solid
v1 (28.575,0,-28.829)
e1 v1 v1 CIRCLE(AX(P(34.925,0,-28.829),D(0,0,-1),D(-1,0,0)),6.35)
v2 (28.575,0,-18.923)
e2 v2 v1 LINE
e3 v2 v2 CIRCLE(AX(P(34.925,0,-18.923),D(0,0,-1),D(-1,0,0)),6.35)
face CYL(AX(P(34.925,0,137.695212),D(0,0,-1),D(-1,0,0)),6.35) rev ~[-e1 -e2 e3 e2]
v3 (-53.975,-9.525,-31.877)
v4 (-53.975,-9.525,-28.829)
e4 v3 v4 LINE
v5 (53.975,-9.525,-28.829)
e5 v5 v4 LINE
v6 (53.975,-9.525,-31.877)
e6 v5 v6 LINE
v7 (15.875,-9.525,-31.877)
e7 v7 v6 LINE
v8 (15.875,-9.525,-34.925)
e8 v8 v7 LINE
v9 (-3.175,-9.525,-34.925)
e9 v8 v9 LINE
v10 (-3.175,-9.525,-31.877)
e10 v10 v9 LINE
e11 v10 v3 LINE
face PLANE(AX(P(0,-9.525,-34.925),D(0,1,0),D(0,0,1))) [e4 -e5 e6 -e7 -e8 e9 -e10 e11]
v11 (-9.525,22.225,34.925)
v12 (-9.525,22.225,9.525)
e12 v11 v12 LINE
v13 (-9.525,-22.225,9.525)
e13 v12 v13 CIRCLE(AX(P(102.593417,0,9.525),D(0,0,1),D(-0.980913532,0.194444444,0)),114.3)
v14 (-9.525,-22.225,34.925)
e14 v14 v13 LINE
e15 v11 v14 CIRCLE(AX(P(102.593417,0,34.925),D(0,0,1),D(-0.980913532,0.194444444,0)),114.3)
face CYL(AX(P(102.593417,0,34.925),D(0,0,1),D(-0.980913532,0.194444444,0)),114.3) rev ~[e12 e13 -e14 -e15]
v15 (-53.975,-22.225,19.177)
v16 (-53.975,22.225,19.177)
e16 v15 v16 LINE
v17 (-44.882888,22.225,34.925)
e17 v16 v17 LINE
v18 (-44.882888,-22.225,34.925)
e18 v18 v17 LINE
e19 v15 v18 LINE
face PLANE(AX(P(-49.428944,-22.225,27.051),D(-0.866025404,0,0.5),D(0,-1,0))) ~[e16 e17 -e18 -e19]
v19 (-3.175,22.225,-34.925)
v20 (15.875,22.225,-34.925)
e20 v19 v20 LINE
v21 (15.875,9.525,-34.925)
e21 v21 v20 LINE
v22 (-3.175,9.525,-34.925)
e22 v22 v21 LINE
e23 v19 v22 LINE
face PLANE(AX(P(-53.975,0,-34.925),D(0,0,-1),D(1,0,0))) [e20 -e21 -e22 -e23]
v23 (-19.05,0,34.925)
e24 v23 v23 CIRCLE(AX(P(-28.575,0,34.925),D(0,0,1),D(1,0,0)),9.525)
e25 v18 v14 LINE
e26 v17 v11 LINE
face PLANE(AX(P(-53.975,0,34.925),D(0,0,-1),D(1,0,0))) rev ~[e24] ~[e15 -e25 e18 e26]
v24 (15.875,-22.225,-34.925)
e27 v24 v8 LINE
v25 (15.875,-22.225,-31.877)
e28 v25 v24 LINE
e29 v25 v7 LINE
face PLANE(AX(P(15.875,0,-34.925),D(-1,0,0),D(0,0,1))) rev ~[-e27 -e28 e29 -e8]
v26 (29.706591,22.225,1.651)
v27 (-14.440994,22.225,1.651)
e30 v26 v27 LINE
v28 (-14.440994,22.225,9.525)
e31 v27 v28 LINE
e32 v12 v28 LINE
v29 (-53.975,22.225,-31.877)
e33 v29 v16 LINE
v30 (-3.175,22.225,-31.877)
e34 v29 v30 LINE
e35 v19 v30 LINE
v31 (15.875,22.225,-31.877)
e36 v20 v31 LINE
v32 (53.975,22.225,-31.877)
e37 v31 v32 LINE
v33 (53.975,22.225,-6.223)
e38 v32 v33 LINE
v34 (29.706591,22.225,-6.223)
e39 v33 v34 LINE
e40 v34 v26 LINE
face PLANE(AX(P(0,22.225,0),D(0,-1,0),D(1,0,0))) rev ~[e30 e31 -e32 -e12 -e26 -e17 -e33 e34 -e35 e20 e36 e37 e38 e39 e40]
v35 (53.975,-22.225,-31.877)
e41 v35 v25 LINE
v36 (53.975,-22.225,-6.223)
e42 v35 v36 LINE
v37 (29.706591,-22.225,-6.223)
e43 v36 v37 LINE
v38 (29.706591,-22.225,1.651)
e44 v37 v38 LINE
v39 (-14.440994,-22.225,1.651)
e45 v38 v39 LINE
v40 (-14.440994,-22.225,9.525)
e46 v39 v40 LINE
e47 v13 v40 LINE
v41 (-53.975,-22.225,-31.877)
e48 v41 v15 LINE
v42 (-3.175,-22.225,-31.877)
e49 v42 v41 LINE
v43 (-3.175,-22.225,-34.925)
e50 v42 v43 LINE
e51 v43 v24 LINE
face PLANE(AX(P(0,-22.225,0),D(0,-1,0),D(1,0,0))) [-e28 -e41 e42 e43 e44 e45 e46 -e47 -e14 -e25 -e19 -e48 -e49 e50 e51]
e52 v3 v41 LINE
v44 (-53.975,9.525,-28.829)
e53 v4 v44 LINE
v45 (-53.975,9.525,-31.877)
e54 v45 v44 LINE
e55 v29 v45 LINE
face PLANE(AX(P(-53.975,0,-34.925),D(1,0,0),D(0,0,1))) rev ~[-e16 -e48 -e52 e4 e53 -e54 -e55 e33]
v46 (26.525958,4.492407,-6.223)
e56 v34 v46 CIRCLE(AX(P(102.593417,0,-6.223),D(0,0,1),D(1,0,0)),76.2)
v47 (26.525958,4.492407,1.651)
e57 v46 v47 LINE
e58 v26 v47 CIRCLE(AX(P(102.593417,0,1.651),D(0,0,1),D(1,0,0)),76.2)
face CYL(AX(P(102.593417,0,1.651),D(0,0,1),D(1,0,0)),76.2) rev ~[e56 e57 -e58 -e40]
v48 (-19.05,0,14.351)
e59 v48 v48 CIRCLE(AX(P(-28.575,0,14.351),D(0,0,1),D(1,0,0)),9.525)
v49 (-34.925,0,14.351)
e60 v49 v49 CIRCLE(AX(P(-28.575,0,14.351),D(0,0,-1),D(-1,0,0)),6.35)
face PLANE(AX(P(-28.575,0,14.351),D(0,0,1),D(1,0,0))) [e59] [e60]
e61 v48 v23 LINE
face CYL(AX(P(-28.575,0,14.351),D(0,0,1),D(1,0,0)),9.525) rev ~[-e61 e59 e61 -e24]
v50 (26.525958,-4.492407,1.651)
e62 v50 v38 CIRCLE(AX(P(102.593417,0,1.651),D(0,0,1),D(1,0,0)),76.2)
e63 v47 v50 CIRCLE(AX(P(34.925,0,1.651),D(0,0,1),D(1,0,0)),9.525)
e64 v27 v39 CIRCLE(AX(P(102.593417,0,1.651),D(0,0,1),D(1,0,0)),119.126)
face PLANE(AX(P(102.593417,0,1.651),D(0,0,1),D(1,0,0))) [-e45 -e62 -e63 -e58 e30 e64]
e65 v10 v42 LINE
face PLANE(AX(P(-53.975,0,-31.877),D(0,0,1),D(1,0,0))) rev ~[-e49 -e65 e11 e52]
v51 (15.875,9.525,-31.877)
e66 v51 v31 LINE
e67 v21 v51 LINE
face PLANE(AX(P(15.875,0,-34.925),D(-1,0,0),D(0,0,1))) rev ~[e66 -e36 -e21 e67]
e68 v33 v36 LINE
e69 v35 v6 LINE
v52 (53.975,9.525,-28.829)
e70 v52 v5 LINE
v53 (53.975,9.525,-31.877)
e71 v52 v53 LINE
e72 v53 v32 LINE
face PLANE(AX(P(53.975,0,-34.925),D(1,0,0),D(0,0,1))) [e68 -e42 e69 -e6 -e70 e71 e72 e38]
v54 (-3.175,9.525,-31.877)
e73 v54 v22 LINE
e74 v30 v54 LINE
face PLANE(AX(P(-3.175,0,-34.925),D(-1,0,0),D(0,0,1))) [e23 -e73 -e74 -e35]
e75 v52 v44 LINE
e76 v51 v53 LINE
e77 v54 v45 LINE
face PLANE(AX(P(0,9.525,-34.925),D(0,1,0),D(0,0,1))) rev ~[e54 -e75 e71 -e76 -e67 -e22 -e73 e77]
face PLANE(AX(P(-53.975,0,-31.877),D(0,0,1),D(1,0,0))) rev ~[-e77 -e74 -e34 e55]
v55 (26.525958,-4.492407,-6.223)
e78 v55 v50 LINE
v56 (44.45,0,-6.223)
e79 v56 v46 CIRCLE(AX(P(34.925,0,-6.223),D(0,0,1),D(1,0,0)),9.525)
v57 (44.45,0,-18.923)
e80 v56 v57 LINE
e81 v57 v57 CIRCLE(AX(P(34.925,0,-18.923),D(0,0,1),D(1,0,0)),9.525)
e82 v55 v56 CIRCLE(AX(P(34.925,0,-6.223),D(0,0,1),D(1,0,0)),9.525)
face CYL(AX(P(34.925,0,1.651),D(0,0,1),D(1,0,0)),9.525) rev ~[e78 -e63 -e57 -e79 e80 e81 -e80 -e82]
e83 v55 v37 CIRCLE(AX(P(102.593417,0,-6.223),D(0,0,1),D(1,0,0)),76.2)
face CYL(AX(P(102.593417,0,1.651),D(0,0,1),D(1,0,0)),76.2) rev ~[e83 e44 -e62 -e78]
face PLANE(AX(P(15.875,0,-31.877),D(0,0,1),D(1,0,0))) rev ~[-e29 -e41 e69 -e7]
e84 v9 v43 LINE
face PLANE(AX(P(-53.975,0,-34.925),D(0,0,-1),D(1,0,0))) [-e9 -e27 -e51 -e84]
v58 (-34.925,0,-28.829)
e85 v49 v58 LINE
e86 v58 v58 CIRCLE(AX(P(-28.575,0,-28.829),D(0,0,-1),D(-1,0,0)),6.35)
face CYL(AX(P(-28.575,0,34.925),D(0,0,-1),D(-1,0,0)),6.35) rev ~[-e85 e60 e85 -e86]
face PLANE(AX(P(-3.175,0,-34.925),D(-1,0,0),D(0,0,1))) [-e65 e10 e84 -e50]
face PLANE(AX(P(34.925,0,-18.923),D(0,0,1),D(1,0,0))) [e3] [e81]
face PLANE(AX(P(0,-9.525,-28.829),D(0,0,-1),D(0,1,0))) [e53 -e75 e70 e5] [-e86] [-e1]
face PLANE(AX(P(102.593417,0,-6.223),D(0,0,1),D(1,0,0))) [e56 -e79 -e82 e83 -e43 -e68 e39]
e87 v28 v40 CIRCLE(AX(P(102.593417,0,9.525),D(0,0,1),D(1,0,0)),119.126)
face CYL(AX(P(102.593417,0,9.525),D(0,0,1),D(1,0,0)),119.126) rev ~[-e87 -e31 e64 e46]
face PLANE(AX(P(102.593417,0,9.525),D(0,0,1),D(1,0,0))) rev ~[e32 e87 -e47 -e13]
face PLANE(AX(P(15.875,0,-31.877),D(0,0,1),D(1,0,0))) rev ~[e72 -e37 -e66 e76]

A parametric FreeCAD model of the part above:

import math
import FreeCAD as App
import Part
import Sketcher
from FreeCAD import Vector
Q = App.Units.Quantity


def edges_at(feature, points):
    """Names of the edges that pass closest to the given points."""
    edges = feature.Shape.Edges
    near = lambda p: min(range(len(edges)), key=lambda i: edges[i].distToShape(Part.Vertex(*p))[0])
    return sorted({f"Edge{near(p) + 1}" for p in points})


def add_polygon(sketch, points):
    """Adds a closed chain of lines whose ends are joined by coincident constraints."""
    first, n = sketch.GeometryCount, len(points)
    for a, b in zip(points, points[1:] + points[:1]):
        sketch.addGeometry(Part.LineSegment(App.Vector(*a, 0), App.Vector(*b, 0)), False)
    for i in range(n):
        sketch.addConstraint(Sketcher.Constraint("Coincident", first + i, 2, first + (i + 1) % n, 1))

doc = App.newDocument("Part")
body = doc.addObject("PartDesign::Body", "Body")

# Sketch on XZ plane
sketch1 = doc.addObject("Sketcher::SketchObject", "Sketch")
body.addObject(sketch1)
sketch1.AttachmentSupport = (doc.XZ_Plane, [""])
sketch1.MapMode = "FlatFace"
add_polygon(sketch1, [(-54, 35), (-54, -35), (54, -35), (54, 35)])  # lines 0-3
sketch1.addConstraint([
    Sketcher.Constraint("Vertical", 0),
    Sketcher.Constraint("Horizontal", 1),
    Sketcher.Constraint("Vertical", 2),
    Sketcher.Constraint("Horizontal", 3),
    Sketcher.Constraint("Symmetric", 0, 2, 2, 2, -1, 1),
    Sketcher.Constraint("DistanceX", 1, 1, 1, 2, Q("4.25 in")),
    Sketcher.Constraint("DistanceY", 0, 2, 0, 1, Q("2.75 in")),
])
pad1 = doc.addObject("PartDesign::Pad", "Pad")
body.addObject(pad1)
pad1.Profile = sketch1
pad1.Length = Q("1.75 in")
pad1.Midplane = True

# Sketch on XZ plane
sketch2 = doc.addObject("Sketcher::SketchObject", "Sketch001")
body.addObject(sketch2)
sketch2.AttachmentSupport = (doc.XZ_Plane, [""])
sketch2.MapMode = "FlatFace"
add_polygon(sketch2, [(-54, -31.9), (-54, -34.9), (-3.2, -34.9), (-3.2, -31.9)])  # lines 0-3
add_polygon(sketch2, [(15.9, -31.9), (15.9, -34.9), (54, -34.9), (54, -31.9)])  # lines 4-7
sketch2.addConstraint([
    Sketcher.Constraint("Vertical", 0),
    Sketcher.Constraint("Horizontal", 1),
    Sketcher.Constraint("Vertical", 2),
    Sketcher.Constraint("Horizontal", 3),
    Sketcher.Constraint("Vertical", 4),
    Sketcher.Constraint("Horizontal", 5),
    Sketcher.Constraint("Vertical", 6),
    Sketcher.Constraint("Horizontal", 7),
    Sketcher.Constraint("Symmetric", 0, 2, 5, 2, -2),
    Sketcher.Constraint("Horizontal", 3, 2, 6, 2),
    Sketcher.Constraint("DistanceX", 1, 1, 1, 2, Q("2 in")),
    Sketcher.Constraint("DistanceX", 5, 1, 5, 2, Q("1.5 in")),
    Sketcher.Constraint("DistanceY", 0, 2, 0, 1, Q("0.12 in")),
    Sketcher.Constraint("DistanceX", 1, 2, 4, 2, Q("0.75 in")),
    Sketcher.Constraint("DistanceY", 0, 2, -1, 1, Q("1.375 in")),
])
pocket1 = doc.addObject("PartDesign::Pocket", "Pocket")
body.addObject(pocket1)
pocket1.Profile = sketch2
pocket1.Type = "ThroughAll"
pocket1.Midplane = True

# Sketch on YZ plane
sketch3 = doc.addObject("Sketcher::SketchObject", "Sketch002")
body.addObject(sketch3)
sketch3.AttachmentSupport = (doc.YZ_Plane, [""])
sketch3.MapMode = "FlatFace"
add_polygon(sketch3, [(-10, -29), (-10, -35), (10, -35), (10, -29)])  # lines 0-3
sketch3.addConstraint([
    Sketcher.Constraint("Vertical", 0),
    Sketcher.Constraint("Horizontal", 1),
    Sketcher.Constraint("Vertical", 2),
    Sketcher.Constraint("Horizontal", 3),
    Sketcher.Constraint("DistanceX", 1, 1, 1, 2, Q("0.75 in")),
    Sketcher.Constraint("DistanceY", 0, 2, 0, 1, Q("0.24 in")),
    Sketcher.Constraint("DistanceX", 0, 2, -1, 1, Q("0.375 in")),
    Sketcher.Constraint("DistanceY", 0, 2, -1, 1, Q("1.375 in")),
])
pocket2 = doc.addObject("PartDesign::Pocket", "Pocket001")
body.addObject(pocket2)
pocket2.Profile = sketch3
pocket2.Type = "ThroughAll"
pocket2.Midplane = True

# Sketch on XY plane
sketch4 = doc.addObject("Sketcher::SketchObject", "Sketch003")
body.addObject(sketch4)
sketch4.AttachmentSupport = (doc.XY_Plane, [""])
sketch4.MapMode = "FlatFace"
sketch4.AttachmentOffset = App.Placement(Vector(0, 0, 1.375 * 25.4), App.Rotation())
sketch4.addGeometry([
    Part.LineSegment(Vector(54, 22, 0), Vector(-10, 22, 0)),
    Part.ArcOfCircle(Part.Circle(Vector(103, 0, 0), Vector(0, 0, 1), 114), math.radians(169), math.radians(191)),
    Part.LineSegment(Vector(-10, -22, 0), Vector(54, -22, 0)),
    Part.LineSegment(Vector(54, -22, 0), Vector(54, 22, 0)),
], False)
sketch4.addConstraint([
    Sketcher.Constraint("Coincident", 0, 2, 1, 1),
    Sketcher.Constraint("Coincident", 1, 2, 2, 1),
    Sketcher.Constraint("Coincident", 2, 2, 3, 1),
    Sketcher.Constraint("Coincident", 3, 2, 0, 1),
    Sketcher.Constraint("Horizontal", 0),
    Sketcher.Constraint("Horizontal", 2),
    Sketcher.Constraint("Vertical", 3),
    Sketcher.Constraint("Symmetric", 0, 2, 1, 2, -1),
    Sketcher.Constraint("Radius", 1, Q("4.5 in")),
    Sketcher.Constraint("DistanceX", 0, 2, 0, 1, Q("2.5 in")),
    Sketcher.Constraint("DistanceY", 3, 1, 3, 2, Q("1.75 in")),
    Sketcher.Constraint("DistanceX", 0, 2, -1, 1, Q("0.375 in")),
])
pocket3 = doc.addObject("PartDesign::Pocket", "Pocket002")
body.addObject(pocket3)
pocket3.Profile = sketch4
pocket3.Length = Q("1 in")

# Sketch on XY plane
sketch5 = doc.addObject("Sketcher::SketchObject", "Sketch004")
body.addObject(sketch5)
sketch5.AttachmentSupport = (doc.XY_Plane, [""])
sketch5.MapMode = "FlatFace"
sketch5.AttachmentOffset = App.Placement(Vector(0, 0, 0.375 * 25.4), App.Rotation())
sketch5.addGeometry(Part.Circle(Vector(103, 0, 0), Vector(0, 0, 1), 119), False)
sketch5.addConstraint([
    Sketcher.Constraint("PointOnObject", 0, 3, -1),
    Sketcher.Constraint("Diameter", 0, Q("9.38 in")),
    Sketcher.Constraint("DistanceX", -1, 1, 0, 3, Q("102.593417 mm")),
])
pocket4 = doc.addObject("PartDesign::Pocket", "Pocket003")
body.addObject(pocket4)
pocket4.Profile = sketch5
pocket4.Length = Q("0.31 in")

# Sketch on XY plane
sketch6 = doc.addObject("Sketcher::SketchObject", "Sketch005")
body.addObject(sketch6)
sketch6.AttachmentSupport = (doc.XY_Plane, [""])
sketch6.MapMode = "FlatFace"
sketch6.AttachmentOffset = App.Placement(Vector(0, 0, 0.065 * 25.4), App.Rotation())
sketch6.addGeometry(Part.Circle(Vector(103, 0, 0), Vector(0, 0, 1), 76), False)
sketch6.addConstraint([
    Sketcher.Constraint("PointOnObject", 0, 3, -1),
    Sketcher.Constraint("Diameter", 0, Q("6 in")),
    Sketcher.Constraint("DistanceX", -1, 1, 0, 3, Q("102.593417 mm")),
])
pocket5 = doc.addObject("PartDesign::Pocket", "Pocket004")
body.addObject(pocket5)
pocket5.Profile = sketch6
pocket5.Length = Q("0.31 in")

# Sketch on XY plane
sketch7 = doc.addObject("Sketcher::SketchObject", "Sketch006")
body.addObject(sketch7)
sketch7.AttachmentSupport = (doc.XY_Plane, [""])
sketch7.MapMode = "FlatFace"
sketch7.AttachmentOffset = App.Placement(Vector(0, 0, 1.375 * 25.4), App.Rotation())
sketch7.addGeometry(Part.Circle(Vector(-29, 0, 0), Vector(0, 0, 1), 6), False)
sketch7.addConstraint([
    Sketcher.Constraint("PointOnObject", 0, 3, -1),
    Sketcher.Constraint("Diameter", 0, Q("0.5 in")),
    Sketcher.Constraint("DistanceX", 0, 3, -1, 1, Q("1.125 in")),
])
doc.recompute()
hole = doc.addObject("PartDesign::Hole", "Hole")
body.addObject(hole)
hole.Profile = sketch7
hole.ThreadType = "None"
hole.Diameter = Q("0.5 in")
hole.DepthType = "ThroughAll"
hole.HoleCutType = "Counterbore"
hole.HoleCutDiameter = Q("0.75 in")
hole.HoleCutDepth = Q("0.81 in")

# Sketch on XY plane
sketch8 = doc.addObject("Sketcher::SketchObject", "Sketch007")
body.addObject(sketch8)
sketch8.AttachmentSupport = (doc.XY_Plane, [""])
sketch8.MapMode = "FlatFace"
sketch8.AttachmentOffset = App.Placement(Vector(0, 0, 0.065 * 25.4), App.Rotation())
sketch8.addGeometry(Part.Circle(Vector(35, 0, 0), Vector(0, 0, 1), 6), False)
sketch8.addConstraint([
    Sketcher.Constraint("PointOnObject", 0, 3, -1),
    Sketcher.Constraint("Diameter", 0, Q("0.5 in")),
    Sketcher.Constraint("DistanceX", -1, 1, 0, 3, Q("1.375 in")),
])
doc.recompute()
hole2 = doc.addObject("PartDesign::Hole", "Hole001")
body.addObject(hole2)
hole2.Profile = sketch8
hole2.ThreadType = "None"
hole2.Diameter = Q("0.5 in")
hole2.DepthType = "ThroughAll"

# Sketch on XY plane
sketch9 = doc.addObject("Sketcher::SketchObject", "Sketch008")
body.addObject(sketch9)
sketch9.AttachmentSupport = (doc.XY_Plane, [""])
sketch9.MapMode = "FlatFace"
sketch9.AttachmentOffset = App.Placement(Vector(0, 0, 0.065 * 25.4), App.Rotation())
sketch9.addGeometry(Part.Circle(Vector(35, 0, 0), Vector(0, 0, 1), 10), False)
sketch9.addConstraint([
    Sketcher.Constraint("PointOnObject", 0, 3, -1),
    Sketcher.Constraint("Diameter", 0, Q("0.75 in")),
    Sketcher.Constraint("DistanceX", -1, 1, 0, 3, Q("1.375 in")),
])
pocket6 = doc.addObject("PartDesign::Pocket", "Pocket005")
body.addObject(pocket6)
pocket6.Profile = sketch9
pocket6.Length = Q("0.81 in")
doc.recompute()

chamfer = doc.addObject("PartDesign::Chamfer", "Chamfer")
body.addObject(chamfer)
chamfer.Base = (pocket6, edges_at(pocket6, [(-53.975, 0, 34.925)]))
chamfer.ChamferType = "Two distances"
chamfer.Size = Q("0.62 in")
chamfer.Size2 = 9.092112

doc.recompute()
